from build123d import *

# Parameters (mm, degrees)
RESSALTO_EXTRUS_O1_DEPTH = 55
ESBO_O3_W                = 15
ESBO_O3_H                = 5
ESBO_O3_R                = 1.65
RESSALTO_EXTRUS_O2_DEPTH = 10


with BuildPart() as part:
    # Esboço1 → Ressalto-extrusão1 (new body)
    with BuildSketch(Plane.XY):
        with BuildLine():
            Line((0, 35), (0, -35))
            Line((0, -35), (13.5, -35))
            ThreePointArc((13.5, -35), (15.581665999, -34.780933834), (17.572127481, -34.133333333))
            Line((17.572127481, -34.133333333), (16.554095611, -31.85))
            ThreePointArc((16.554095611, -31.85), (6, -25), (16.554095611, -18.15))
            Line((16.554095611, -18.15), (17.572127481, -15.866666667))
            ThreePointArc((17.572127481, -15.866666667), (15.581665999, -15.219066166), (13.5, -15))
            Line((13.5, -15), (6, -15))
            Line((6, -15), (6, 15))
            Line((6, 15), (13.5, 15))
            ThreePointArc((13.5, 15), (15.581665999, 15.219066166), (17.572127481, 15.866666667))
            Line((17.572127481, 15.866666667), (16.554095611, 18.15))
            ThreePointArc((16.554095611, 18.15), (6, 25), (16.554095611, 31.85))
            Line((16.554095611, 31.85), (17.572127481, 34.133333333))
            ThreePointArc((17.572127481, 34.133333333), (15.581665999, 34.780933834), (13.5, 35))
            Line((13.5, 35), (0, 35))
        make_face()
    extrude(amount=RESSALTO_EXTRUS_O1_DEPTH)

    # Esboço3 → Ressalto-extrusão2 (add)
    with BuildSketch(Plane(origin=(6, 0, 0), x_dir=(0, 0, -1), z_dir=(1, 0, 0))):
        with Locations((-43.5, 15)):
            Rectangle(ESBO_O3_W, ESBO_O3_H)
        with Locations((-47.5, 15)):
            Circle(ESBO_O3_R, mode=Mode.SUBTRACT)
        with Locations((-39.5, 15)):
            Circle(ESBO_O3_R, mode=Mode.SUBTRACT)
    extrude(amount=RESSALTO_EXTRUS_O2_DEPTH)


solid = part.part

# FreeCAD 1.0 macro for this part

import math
import FreeCAD as App
import Part
import Sketcher
from FreeCAD import Vector
Q = App.Units.Quantity

doc = App.newDocument("Part")
body = doc.addObject("PartDesign::Body", "Body")

sketch1 = body.newObject("Sketcher::SketchObject", "Sketch")
sketch1.AttachmentSupport = (doc.getObject("XY_Plane"), [""])
sketch1.MapMode = "FlatFace"
sketch1.addGeometry([
    Part.LineSegment(Vector(0, 35, 0), Vector(0, -35, 0)),
    Part.LineSegment(Vector(0, -35, 0), Vector(13.5, -35, 0)),
    Part.ArcOfCircle(Part.Circle(Vector(13.5, -25, 0), Vector(0, 0, 1), 10), math.radians(-90), math.radians(-66)),
    Part.LineSegment(Vector(17.6, -34.1, 0), Vector(16.6, -31.9, 0)),
    Part.ArcOfCircle(Part.Circle(Vector(13.5, -25, 0), Vector(0, 0, 1), 7.5), math.radians(66), math.radians(294)),
    Part.LineSegment(Vector(16.6, -18.1, 0), Vector(17.6, -15.9, 0)),
    Part.ArcOfCircle(Part.Circle(Vector(13.5, -25, 0), Vector(0, 0, 1), 10), math.radians(66), math.radians(90)),
    Part.LineSegment(Vector(13.5, -15, 0), Vector(6, -15, 0)),
    Part.LineSegment(Vector(6, -15, 0), Vector(6, 15, 0)),
    Part.LineSegment(Vector(6, 15, 0), Vector(13.5, 15, 0)),
    Part.ArcOfCircle(Part.Circle(Vector(13.5, 25, 0), Vector(0, 0, 1), 10), math.radians(-90), math.radians(-66)),
    Part.LineSegment(Vector(17.6, 15.9, 0), Vector(16.6, 18.1, 0)),
    Part.ArcOfCircle(Part.Circle(Vector(13.5, 25, 0), Vector(0, 0, 1), 7.5), math.radians(66), math.radians(294)),
    Part.LineSegment(Vector(16.6, 31.9, 0), Vector(17.6, 34.1, 0)),
    Part.ArcOfCircle(Part.Circle(Vector(13.5, 25, 0), Vector(0, 0, 1), 10), math.radians(66), math.radians(90)),
    Part.LineSegment(Vector(13.5, 35, 0), Vector(0, 35, 0)),
], False)
sketch1.addConstraint([
    Sketcher.Constraint("Coincident", 0, 2, 1, 1),
    Sketcher.Constraint("Tangent", 1, 2, 2, 1),
    Sketcher.Constraint("Coincident", 2, 2, 3, 1),
    Sketcher.Constraint("Coincident", 3, 2, 4, 2),
    Sketcher.Constraint("Coincident", 4, 1, 5, 1),
    Sketcher.Constraint("Coincident", 5, 2, 6, 1),
    Sketcher.Constraint("Tangent", 6, 2, 7, 1),
    Sketcher.Constraint("Coincident", 7, 2, 8, 1),
    Sketcher.Constraint("Coincident", 8, 2, 9, 1),
    Sketcher.Constraint("Tangent", 9, 2, 10, 1),
    Sketcher.Constraint("Coincident", 10, 2, 11, 1),
    Sketcher.Constraint("Coincident", 11, 2, 12, 2),
    Sketcher.Constraint("Coincident", 12, 1, 13, 1),
    Sketcher.Constraint("Coincident", 13, 2, 14, 1),
    Sketcher.Constraint("Tangent", 14, 2, 15, 1),
    Sketcher.Constraint("Coincident", 15, 2, 0, 1),
    Sketcher.Constraint("Vertical", 0),
    Sketcher.Constraint("Horizontal", 1),
    Sketcher.Constraint("Horizontal", 7),
    Sketcher.Constraint("Vertical", 8),
    Sketcher.Constraint("Horizontal", 9),
    Sketcher.Constraint("Horizontal", 15),
    Sketcher.Constraint("Coincident", 4, 3, 2, 3),
    Sketcher.Constraint("Coincident", 6, 3, 2, 3),
    Sketcher.Constraint("Coincident", 12, 3, 10, 3),
    Sketcher.Constraint("Coincident", 14, 3, 10, 3),
    Sketcher.Constraint("Equal", 2, 6),
    Sketcher.Constraint("Equal", 6, 10),
    Sketcher.Constraint("Equal", 4, 12),
    Sketcher.Constraint("Equal", 10, 14),
    Sketcher.Constraint("Symmetric", 0, 2, 15, 2, -1, 1),
    Sketcher.Constraint("Symmetric", 5, 2, 10, 2, -1),
    Sketcher.Constraint("Parallel", 3, 11),
    Sketcher.Constraint("Parallel", 5, 13),
    Sketcher.Constraint("Vertical", 3, 2, 4, 1),
    Sketcher.Constraint("Vertical", 2, 2, 5, 2),
    Sketcher.Constraint("Vertical", 11, 2, 12, 1),
    Sketcher.Constraint("Radius", 2, Q("10 mm")),
    Sketcher.Constraint("Radius", 4, Q("7.5 mm")),
    Sketcher.Constraint("DistanceY", 0, 2, 0, 1, Q("70 mm")),
    Sketcher.Constraint("DistanceX", 1, 1, 1, 2, Q("13.5 mm")),
    Sketcher.Constraint("DistanceX", 7, 2, 7, 1, Q("7.5 mm")),
    Sketcher.Constraint("DistanceY", 3, 2, 4, 1, Q("13.7 mm")),
    Sketcher.Constraint("DistanceX", 3, 2, 2, 2, Q("1.018032 mm")),
])
pad1 = body.newObject("PartDesign::Pad", "Pad")
pad1.Profile = sketch1
pad1.Length = 55

sketch2 = body.newObject("Sketcher::SketchObject", "Sketch001")
sketch2.AttachmentSupport = (doc.getObject("YZ_Plane"), [""])
sketch2.MapMode = "FlatFace"
sketch2.AttachmentOffset = App.Placement(Vector(0, 0, 6), App.Rotation())
sketch2.addGeometry([
    Part.LineSegment(Vector(17.5, 51, 0), Vector(12.5, 51, 0)),
    Part.LineSegment(Vector(12.5, 51, 0), Vector(12.5, 36, 0)),
    Part.LineSegment(Vector(12.5, 36, 0), Vector(17.5, 36, 0)),
    Part.LineSegment(Vector(17.5, 36, 0), Vector(17.5, 51, 0)),
    Part.Circle(Vector(15, 47.5, 0), Vector(0, 0, 1), 1.6),
    Part.Circle(Vector(15, 39.5, 0), Vector(0, 0, 1), 1.6),
], False)
sketch2.addConstraint([
    Sketcher.Constraint("Coincident", 0, 2, 1, 1),
    Sketcher.Constraint("Coincident", 1, 2, 2, 1),
    Sketcher.Constraint("Coincident", 2, 2, 3, 1),
    Sketcher.Constraint("Coincident", 3, 2, 0, 1),
    Sketcher.Constraint("Horizontal", 0),
    Sketcher.Constraint("Vertical", 1),
    Sketcher.Constraint("Horizontal", 2),
    Sketcher.Constraint("Vertical", 3),
    Sketcher.Constraint("Equal", 4, 5),
    Sketcher.Constraint("Vertical", 4, 3, 5, 3),
    Sketcher.Constraint("Diameter", 4, Q("3.3 mm")),
    Sketcher.Constraint("DistanceX", 0, 2, 0, 1, Q("5 mm")),
    Sketcher.Constraint("DistanceY", 1, 2, 1, 1, Q("15 mm")),
    Sketcher.Constraint("DistanceX", -1, 1, 4, 3, Q("15 mm")),
    Sketcher.Constraint("DistanceY", -1, 1, 0, 2, Q("51 mm")),
    Sketcher.Constraint("DistanceY", 5, 3, 4, 3, Q("8 mm")),
    Sketcher.Constraint("DistanceY", -1, 1, 4, 3, Q("47.5 mm")),
    Sketcher.Constraint("DistanceX", -1, 1, 0, 2, Q("12.5 mm")),
])
pad2 = body.newObject("PartDesign::Pad", "Pad001")
pad2.Profile = sketch2
pad2.Length = 10

doc.recompute()
